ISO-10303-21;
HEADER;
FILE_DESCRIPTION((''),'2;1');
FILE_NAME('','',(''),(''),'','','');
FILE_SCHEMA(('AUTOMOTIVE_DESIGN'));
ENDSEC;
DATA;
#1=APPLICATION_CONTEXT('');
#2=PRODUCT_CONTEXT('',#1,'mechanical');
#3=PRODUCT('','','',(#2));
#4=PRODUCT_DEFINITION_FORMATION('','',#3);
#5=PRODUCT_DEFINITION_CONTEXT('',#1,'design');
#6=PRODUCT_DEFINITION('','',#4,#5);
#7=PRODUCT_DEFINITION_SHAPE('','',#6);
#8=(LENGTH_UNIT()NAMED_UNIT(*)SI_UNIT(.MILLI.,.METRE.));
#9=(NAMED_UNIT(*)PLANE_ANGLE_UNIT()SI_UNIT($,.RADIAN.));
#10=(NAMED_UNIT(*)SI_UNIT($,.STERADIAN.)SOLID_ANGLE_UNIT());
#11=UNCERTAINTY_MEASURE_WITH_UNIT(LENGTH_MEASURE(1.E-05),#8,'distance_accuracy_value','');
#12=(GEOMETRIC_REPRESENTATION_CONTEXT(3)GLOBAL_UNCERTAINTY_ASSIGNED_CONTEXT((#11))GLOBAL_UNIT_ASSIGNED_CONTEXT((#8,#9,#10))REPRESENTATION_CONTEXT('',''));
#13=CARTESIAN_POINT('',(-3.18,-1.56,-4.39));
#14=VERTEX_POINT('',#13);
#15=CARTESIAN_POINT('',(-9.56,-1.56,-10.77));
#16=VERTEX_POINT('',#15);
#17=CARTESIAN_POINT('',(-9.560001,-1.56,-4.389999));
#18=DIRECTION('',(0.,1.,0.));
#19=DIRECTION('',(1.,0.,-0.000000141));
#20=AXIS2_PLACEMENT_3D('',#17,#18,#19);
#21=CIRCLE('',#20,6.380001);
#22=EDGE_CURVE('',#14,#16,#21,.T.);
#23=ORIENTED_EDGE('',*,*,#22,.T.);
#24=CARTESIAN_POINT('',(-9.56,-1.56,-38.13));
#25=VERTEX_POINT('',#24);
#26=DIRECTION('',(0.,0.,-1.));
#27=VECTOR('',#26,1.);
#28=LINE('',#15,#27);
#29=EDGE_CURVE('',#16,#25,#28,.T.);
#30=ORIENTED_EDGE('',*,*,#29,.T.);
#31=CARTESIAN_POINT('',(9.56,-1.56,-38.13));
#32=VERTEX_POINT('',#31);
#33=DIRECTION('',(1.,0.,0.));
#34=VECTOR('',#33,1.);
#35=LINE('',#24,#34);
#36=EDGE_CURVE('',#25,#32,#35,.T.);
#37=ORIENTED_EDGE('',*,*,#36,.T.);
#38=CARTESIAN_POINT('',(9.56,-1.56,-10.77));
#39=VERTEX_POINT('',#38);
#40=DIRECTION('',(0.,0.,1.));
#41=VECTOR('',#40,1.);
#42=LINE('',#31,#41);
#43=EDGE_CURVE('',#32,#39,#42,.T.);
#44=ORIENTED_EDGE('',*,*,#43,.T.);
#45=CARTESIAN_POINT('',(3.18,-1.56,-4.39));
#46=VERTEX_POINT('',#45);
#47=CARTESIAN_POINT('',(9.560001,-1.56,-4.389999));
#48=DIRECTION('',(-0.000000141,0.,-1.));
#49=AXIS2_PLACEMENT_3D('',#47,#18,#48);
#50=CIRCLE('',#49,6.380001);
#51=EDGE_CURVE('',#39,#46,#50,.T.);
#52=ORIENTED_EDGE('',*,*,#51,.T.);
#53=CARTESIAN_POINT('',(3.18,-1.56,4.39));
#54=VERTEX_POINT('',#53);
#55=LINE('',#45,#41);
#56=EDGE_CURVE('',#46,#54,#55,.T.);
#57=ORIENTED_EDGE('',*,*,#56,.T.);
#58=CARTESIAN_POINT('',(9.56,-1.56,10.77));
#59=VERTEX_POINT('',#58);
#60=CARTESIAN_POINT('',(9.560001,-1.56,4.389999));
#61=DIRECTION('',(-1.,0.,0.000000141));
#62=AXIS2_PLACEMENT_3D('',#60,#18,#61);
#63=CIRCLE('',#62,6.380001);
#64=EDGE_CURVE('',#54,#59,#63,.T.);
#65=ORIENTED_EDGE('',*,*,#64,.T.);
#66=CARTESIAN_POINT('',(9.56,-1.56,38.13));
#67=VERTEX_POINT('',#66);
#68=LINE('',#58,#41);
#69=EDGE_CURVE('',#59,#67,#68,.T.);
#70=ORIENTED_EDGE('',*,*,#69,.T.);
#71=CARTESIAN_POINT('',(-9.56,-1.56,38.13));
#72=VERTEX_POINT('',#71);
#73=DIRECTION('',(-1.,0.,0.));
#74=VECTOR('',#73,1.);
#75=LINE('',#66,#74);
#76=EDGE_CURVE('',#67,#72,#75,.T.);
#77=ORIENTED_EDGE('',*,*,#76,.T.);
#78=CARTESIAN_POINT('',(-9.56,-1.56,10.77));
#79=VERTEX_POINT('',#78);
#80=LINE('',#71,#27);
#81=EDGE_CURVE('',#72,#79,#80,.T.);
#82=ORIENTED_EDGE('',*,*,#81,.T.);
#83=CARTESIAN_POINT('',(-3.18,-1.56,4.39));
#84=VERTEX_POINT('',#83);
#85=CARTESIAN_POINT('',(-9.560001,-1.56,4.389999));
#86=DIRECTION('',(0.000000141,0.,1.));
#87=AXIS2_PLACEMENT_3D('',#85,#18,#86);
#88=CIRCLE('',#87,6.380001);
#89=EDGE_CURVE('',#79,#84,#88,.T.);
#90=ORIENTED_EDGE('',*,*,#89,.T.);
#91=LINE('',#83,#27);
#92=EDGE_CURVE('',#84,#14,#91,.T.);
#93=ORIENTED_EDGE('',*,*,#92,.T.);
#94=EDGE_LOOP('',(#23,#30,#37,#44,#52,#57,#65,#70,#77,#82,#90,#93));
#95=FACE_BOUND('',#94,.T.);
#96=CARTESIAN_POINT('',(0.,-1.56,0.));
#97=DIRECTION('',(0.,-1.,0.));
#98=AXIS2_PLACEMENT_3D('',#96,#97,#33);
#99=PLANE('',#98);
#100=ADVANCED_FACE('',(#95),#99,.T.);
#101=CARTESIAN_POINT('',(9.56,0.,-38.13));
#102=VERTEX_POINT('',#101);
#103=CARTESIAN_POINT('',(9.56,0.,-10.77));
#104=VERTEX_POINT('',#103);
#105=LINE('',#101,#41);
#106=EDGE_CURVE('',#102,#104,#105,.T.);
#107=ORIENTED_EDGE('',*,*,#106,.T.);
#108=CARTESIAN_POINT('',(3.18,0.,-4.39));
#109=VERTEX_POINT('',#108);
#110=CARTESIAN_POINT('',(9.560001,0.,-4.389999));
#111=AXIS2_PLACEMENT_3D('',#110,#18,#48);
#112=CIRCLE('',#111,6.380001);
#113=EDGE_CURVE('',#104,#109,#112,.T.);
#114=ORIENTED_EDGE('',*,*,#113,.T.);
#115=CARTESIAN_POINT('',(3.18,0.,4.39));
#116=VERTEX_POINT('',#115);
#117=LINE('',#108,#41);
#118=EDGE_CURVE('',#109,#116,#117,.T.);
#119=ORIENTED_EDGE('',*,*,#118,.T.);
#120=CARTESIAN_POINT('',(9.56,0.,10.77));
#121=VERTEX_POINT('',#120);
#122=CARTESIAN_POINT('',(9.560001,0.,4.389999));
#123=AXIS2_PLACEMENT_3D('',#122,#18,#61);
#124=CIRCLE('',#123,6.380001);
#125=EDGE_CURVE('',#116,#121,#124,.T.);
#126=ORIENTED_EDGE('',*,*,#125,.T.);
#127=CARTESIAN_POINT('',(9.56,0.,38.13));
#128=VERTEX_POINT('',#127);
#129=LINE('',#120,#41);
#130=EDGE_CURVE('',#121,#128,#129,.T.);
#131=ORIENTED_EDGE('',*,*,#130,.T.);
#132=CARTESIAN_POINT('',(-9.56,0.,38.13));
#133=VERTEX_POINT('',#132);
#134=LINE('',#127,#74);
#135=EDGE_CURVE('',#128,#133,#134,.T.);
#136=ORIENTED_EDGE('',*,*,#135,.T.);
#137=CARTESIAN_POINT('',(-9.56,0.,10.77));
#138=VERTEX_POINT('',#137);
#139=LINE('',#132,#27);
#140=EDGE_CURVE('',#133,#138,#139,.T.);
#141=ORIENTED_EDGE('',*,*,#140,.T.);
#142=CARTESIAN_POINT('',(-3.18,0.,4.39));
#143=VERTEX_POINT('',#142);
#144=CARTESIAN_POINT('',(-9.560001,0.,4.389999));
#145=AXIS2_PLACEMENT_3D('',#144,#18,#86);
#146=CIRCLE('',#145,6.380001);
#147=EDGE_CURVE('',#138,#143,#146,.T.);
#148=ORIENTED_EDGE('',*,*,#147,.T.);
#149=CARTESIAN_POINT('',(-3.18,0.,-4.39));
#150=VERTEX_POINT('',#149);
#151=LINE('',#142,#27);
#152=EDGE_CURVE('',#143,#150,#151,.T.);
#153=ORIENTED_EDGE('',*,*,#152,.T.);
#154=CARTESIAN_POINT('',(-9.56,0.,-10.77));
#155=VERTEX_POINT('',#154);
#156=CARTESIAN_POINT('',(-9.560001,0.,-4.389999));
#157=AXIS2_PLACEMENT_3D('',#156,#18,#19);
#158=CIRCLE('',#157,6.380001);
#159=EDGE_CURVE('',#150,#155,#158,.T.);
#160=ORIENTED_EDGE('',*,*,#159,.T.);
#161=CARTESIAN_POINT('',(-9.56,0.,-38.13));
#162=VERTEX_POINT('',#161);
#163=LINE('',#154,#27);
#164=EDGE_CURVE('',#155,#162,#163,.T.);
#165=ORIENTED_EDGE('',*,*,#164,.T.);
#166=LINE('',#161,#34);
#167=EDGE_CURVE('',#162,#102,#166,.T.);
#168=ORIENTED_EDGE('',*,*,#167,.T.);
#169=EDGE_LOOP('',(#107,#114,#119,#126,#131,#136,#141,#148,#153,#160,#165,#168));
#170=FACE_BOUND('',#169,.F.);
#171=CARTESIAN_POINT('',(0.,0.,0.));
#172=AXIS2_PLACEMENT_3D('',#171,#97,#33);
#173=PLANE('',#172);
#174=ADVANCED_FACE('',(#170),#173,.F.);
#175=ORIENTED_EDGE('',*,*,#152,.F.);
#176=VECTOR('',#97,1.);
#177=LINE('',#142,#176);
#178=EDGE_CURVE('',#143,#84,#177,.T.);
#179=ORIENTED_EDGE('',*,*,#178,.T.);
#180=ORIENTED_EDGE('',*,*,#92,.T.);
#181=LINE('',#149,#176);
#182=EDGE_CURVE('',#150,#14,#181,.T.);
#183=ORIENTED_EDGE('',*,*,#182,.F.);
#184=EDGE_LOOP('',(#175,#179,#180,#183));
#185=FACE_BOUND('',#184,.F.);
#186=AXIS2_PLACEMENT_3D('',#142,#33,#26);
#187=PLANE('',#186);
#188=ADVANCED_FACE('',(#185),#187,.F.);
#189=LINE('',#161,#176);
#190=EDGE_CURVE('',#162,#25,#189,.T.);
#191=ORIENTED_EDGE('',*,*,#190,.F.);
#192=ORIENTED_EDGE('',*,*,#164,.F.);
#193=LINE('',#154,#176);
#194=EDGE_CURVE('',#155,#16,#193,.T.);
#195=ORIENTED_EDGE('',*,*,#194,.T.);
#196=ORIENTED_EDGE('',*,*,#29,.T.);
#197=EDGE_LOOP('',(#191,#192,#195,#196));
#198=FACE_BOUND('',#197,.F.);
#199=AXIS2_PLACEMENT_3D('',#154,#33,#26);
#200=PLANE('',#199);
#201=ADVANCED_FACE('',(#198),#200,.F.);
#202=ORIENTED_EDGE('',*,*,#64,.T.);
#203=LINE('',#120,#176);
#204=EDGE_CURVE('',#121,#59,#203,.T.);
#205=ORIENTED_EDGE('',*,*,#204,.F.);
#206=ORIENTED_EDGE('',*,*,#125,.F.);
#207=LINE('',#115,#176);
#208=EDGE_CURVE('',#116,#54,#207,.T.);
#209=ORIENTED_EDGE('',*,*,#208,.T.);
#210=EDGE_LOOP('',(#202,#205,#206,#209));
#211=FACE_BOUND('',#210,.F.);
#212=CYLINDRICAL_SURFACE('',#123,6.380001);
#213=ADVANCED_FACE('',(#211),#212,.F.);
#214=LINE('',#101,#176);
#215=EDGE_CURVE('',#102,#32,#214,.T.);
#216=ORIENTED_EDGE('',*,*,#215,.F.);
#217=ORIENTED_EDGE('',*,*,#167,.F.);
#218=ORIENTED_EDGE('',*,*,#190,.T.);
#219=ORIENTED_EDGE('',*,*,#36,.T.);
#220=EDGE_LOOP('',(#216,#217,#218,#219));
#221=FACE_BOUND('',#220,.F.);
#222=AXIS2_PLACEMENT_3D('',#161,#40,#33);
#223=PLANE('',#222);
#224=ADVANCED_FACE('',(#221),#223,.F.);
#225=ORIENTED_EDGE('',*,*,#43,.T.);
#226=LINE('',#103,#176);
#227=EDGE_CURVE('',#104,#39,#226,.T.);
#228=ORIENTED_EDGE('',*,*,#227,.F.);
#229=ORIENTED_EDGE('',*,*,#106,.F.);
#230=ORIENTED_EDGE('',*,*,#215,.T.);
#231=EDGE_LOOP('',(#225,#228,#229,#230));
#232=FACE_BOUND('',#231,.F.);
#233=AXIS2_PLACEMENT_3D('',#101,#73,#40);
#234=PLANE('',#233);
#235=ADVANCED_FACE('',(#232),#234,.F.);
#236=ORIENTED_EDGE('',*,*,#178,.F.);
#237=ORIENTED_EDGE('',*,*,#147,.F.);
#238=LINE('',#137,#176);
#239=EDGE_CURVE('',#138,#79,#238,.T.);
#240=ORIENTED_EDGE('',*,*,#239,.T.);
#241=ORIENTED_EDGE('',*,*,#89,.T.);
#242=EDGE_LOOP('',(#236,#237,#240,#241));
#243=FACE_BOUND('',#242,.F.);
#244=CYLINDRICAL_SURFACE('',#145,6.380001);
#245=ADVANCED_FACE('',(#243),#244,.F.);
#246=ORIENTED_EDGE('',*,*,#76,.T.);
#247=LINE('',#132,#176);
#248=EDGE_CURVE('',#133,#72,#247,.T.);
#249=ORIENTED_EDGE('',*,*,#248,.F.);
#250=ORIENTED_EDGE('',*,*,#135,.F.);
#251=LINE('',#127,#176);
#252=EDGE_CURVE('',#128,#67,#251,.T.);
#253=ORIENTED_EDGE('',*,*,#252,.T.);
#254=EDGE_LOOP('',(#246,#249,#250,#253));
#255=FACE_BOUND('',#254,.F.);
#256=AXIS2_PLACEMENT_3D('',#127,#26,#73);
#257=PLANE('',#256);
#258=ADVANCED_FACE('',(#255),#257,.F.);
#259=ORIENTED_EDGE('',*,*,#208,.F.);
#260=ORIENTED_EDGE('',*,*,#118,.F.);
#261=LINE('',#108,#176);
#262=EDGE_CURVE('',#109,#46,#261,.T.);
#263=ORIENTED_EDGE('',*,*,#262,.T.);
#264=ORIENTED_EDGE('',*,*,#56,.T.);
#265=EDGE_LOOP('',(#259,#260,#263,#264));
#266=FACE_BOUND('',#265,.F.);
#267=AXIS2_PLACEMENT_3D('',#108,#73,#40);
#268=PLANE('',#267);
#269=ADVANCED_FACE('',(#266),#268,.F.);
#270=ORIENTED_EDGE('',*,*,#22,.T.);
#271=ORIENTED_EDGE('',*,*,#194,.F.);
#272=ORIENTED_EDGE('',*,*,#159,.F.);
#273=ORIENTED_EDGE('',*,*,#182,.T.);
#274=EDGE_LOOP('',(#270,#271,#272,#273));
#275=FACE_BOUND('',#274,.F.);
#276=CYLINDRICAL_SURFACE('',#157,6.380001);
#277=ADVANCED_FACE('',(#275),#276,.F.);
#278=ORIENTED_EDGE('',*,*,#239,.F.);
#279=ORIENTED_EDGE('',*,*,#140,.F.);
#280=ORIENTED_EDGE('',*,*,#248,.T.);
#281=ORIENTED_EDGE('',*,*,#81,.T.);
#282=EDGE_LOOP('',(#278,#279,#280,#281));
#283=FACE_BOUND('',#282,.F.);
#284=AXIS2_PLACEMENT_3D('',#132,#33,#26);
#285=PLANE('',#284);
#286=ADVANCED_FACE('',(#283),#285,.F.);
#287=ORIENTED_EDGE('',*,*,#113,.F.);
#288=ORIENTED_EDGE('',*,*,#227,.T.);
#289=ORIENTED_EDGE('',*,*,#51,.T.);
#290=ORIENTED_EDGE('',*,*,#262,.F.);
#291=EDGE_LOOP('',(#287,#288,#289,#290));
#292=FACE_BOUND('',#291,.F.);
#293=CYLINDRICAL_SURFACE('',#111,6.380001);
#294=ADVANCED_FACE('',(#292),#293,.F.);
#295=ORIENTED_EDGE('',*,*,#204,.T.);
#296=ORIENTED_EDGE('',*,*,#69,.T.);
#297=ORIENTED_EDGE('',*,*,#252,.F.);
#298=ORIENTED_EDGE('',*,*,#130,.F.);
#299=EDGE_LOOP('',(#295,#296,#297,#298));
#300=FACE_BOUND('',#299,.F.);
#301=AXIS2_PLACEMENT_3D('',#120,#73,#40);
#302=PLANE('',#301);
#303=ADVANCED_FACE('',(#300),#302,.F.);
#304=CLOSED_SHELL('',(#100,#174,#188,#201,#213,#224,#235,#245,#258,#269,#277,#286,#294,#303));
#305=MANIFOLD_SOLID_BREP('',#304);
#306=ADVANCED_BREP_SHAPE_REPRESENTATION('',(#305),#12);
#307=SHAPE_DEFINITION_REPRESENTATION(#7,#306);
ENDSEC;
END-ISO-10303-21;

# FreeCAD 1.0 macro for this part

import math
import FreeCAD as App
import Part
import Sketcher

doc = App.newDocument("Part")
body = doc.addObject("PartDesign::Body", "Body")

# Sketch on XZ plane
sketch1 = body.newObject("Sketcher::SketchObject", "Sketch")
sketch1.AttachmentSupport = (doc.getObject("XZ_Plane"), [""])
sketch1.MapMode = "FlatFace"
sketch1.addGeometry([
    Part.LineSegment(App.Vector(3, -4, 0), App.Vector(3, 4, 0)),  # 0
    Part.ArcOfCircle(Part.Circle(App.Vector(10, 4, 0), App.Vector(0, 0, 1), 6), math.radians(90), math.radians(180)),  # 1
    Part.LineSegment(App.Vector(10, 11, 0), App.Vector(10, 38, 0)),  # 2
    Part.LineSegment(App.Vector(10, 38, 0), App.Vector(-10, 38, 0)),  # 3
    Part.LineSegment(App.Vector(-10, 38, 0), App.Vector(-10, 11, 0)),  # 4
    Part.ArcOfCircle(Part.Circle(App.Vector(-10, 4, 0), App.Vector(0, 0, 1), 6), math.radians(0), math.radians(90)),  # 5
    Part.LineSegment(App.Vector(-3, 4, 0), App.Vector(-3, -4, 0)),  # 6
    Part.ArcOfCircle(Part.Circle(App.Vector(-10, -4, 0), App.Vector(0, 0, 1), 6), math.radians(-90), math.radians(0)),  # 7
    Part.LineSegment(App.Vector(-10, -11, 0), App.Vector(-10, -38, 0)),  # 8
    Part.LineSegment(App.Vector(-10, -38, 0), App.Vector(10, -38, 0)),  # 9
    Part.LineSegment(App.Vector(10, -38, 0), App.Vector(10, -11, 0)),  # 10
    Part.ArcOfCircle(Part.Circle(App.Vector(10, -4, 0), App.Vector(0, 0, 1), 6), math.radians(-180), math.radians(-90)),  # 11
], False)
sketch1.addConstraint([
    Sketcher.Constraint("Tangent", 0, 2, 1, 2),
    Sketcher.Constraint("Coincident", 1, 1, 2, 1),
    Sketcher.Constraint("Coincident", 2, 2, 3, 1),
    Sketcher.Constraint("Coincident", 3, 2, 4, 1),
    Sketcher.Constraint("Coincident", 4, 2, 5, 2),
    Sketcher.Constraint("Tangent", 5, 1, 6, 1),
    Sketcher.Constraint("Tangent", 6, 2, 7, 2),
    Sketcher.Constraint("Coincident", 7, 1, 8, 1),
    Sketcher.Constraint("Coincident", 8, 2, 9, 1),
    Sketcher.Constraint("Coincident", 9, 2, 10, 1),
    Sketcher.Constraint("Coincident", 10, 2, 11, 2),
    Sketcher.Constraint("Tangent", 11, 1, 0, 1),
    Sketcher.Constraint("Vertical", 0),
    Sketcher.Constraint("Vertical", 2),
    Sketcher.Constraint("Horizontal", 3),
    Sketcher.Constraint("Vertical", 4),
    Sketcher.Constraint("Vertical", 6),
    Sketcher.Constraint("Vertical", 8),
    Sketcher.Constraint("Horizontal", 9),
    Sketcher.Constraint("Vertical", 10),
    Sketcher.Constraint("Equal", 1, 5),
    Sketcher.Constraint("Equal", 5, 7),
    Sketcher.Constraint("Equal", 7, 11),
    Sketcher.Constraint("Symmetric", 1, 3, 7, 3, -1, 1),
    Sketcher.Constraint("Symmetric", 2, 2, 8, 2, -1, 1),
    Sketcher.Constraint("Symmetric", 4, 2, 10, 2, -1, 1),
    Sketcher.Constraint("Symmetric", 1, 1, 4, 2, -2),
    Sketcher.Constraint("Vertical", 11, 3, 1, 1),
    Sketcher.Constraint("Radius", 1, 6.380001),
    Sketcher.Constraint("DistanceX", 3, 2, 3, 1, 19.12),
    Sketcher.Constraint("DistanceY", 0, 1, 0, 2, 8.78),
    Sketcher.Constraint("DistanceY", 2, 1, 2, 2, 27.36),
])
pad1 = body.newObject("PartDesign::Pad", "Pad")
pad1.Profile = sketch1
pad1.Length = 1.56

doc.recompute()
